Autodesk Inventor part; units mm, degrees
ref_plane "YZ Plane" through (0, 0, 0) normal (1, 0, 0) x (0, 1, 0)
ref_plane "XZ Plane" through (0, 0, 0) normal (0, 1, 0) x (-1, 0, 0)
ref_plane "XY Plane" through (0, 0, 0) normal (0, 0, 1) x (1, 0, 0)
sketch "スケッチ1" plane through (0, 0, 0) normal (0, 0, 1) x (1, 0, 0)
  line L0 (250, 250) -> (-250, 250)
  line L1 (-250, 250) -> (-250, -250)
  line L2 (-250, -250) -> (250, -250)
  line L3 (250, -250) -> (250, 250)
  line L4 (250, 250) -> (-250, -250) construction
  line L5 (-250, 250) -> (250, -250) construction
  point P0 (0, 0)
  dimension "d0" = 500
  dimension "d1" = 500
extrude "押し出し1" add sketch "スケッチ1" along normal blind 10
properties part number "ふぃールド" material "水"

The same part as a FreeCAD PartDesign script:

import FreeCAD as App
import Part
import Sketcher
from FreeCAD import Vector
Q = App.Units.Quantity


def add_polygon(sketch, points):
    """Adds a closed chain of lines whose ends are joined by coincident constraints."""
    first, n = sketch.GeometryCount, len(points)
    for a, b in zip(points, points[1:] + points[:1]):
        sketch.addGeometry(Part.LineSegment(App.Vector(*a, 0), App.Vector(*b, 0)), False)
    for i in range(n):
        sketch.addConstraint(Sketcher.Constraint("Coincident", first + i, 2, first + (i + 1) % n, 1))

doc = App.newDocument("Part")
body = doc.addObject("PartDesign::Body", "Body")

# Sketch on XY plane
sketch1 = body.newObject("Sketcher::SketchObject", "Sketch")
sketch1.AttachmentSupport = (doc.getObject("XY_Plane"), [""])
sketch1.MapMode = "FlatFace"
add_polygon(sketch1, [(250, -250), (250, 250), (-250, 250), (-250, -250)])  # lines 0-3
sketch1.addConstraint([
    Sketcher.Constraint("Vertical", 0),
    Sketcher.Constraint("Horizontal", 1),
    Sketcher.Constraint("Vertical", 2),
    Sketcher.Constraint("Horizontal", 3),
    Sketcher.Constraint("Symmetric", 0, 2, 2, 2, -1, 1),
    Sketcher.Constraint("Equal", 3, 0),
    Sketcher.Constraint("DistanceX", 1, 2, 1, 1, Q("500 mm")),
])
pad1 = body.newObject("PartDesign::Pad", "Pad")
pad1.Profile = sketch1
pad1.Length = 10

doc.recompute()
